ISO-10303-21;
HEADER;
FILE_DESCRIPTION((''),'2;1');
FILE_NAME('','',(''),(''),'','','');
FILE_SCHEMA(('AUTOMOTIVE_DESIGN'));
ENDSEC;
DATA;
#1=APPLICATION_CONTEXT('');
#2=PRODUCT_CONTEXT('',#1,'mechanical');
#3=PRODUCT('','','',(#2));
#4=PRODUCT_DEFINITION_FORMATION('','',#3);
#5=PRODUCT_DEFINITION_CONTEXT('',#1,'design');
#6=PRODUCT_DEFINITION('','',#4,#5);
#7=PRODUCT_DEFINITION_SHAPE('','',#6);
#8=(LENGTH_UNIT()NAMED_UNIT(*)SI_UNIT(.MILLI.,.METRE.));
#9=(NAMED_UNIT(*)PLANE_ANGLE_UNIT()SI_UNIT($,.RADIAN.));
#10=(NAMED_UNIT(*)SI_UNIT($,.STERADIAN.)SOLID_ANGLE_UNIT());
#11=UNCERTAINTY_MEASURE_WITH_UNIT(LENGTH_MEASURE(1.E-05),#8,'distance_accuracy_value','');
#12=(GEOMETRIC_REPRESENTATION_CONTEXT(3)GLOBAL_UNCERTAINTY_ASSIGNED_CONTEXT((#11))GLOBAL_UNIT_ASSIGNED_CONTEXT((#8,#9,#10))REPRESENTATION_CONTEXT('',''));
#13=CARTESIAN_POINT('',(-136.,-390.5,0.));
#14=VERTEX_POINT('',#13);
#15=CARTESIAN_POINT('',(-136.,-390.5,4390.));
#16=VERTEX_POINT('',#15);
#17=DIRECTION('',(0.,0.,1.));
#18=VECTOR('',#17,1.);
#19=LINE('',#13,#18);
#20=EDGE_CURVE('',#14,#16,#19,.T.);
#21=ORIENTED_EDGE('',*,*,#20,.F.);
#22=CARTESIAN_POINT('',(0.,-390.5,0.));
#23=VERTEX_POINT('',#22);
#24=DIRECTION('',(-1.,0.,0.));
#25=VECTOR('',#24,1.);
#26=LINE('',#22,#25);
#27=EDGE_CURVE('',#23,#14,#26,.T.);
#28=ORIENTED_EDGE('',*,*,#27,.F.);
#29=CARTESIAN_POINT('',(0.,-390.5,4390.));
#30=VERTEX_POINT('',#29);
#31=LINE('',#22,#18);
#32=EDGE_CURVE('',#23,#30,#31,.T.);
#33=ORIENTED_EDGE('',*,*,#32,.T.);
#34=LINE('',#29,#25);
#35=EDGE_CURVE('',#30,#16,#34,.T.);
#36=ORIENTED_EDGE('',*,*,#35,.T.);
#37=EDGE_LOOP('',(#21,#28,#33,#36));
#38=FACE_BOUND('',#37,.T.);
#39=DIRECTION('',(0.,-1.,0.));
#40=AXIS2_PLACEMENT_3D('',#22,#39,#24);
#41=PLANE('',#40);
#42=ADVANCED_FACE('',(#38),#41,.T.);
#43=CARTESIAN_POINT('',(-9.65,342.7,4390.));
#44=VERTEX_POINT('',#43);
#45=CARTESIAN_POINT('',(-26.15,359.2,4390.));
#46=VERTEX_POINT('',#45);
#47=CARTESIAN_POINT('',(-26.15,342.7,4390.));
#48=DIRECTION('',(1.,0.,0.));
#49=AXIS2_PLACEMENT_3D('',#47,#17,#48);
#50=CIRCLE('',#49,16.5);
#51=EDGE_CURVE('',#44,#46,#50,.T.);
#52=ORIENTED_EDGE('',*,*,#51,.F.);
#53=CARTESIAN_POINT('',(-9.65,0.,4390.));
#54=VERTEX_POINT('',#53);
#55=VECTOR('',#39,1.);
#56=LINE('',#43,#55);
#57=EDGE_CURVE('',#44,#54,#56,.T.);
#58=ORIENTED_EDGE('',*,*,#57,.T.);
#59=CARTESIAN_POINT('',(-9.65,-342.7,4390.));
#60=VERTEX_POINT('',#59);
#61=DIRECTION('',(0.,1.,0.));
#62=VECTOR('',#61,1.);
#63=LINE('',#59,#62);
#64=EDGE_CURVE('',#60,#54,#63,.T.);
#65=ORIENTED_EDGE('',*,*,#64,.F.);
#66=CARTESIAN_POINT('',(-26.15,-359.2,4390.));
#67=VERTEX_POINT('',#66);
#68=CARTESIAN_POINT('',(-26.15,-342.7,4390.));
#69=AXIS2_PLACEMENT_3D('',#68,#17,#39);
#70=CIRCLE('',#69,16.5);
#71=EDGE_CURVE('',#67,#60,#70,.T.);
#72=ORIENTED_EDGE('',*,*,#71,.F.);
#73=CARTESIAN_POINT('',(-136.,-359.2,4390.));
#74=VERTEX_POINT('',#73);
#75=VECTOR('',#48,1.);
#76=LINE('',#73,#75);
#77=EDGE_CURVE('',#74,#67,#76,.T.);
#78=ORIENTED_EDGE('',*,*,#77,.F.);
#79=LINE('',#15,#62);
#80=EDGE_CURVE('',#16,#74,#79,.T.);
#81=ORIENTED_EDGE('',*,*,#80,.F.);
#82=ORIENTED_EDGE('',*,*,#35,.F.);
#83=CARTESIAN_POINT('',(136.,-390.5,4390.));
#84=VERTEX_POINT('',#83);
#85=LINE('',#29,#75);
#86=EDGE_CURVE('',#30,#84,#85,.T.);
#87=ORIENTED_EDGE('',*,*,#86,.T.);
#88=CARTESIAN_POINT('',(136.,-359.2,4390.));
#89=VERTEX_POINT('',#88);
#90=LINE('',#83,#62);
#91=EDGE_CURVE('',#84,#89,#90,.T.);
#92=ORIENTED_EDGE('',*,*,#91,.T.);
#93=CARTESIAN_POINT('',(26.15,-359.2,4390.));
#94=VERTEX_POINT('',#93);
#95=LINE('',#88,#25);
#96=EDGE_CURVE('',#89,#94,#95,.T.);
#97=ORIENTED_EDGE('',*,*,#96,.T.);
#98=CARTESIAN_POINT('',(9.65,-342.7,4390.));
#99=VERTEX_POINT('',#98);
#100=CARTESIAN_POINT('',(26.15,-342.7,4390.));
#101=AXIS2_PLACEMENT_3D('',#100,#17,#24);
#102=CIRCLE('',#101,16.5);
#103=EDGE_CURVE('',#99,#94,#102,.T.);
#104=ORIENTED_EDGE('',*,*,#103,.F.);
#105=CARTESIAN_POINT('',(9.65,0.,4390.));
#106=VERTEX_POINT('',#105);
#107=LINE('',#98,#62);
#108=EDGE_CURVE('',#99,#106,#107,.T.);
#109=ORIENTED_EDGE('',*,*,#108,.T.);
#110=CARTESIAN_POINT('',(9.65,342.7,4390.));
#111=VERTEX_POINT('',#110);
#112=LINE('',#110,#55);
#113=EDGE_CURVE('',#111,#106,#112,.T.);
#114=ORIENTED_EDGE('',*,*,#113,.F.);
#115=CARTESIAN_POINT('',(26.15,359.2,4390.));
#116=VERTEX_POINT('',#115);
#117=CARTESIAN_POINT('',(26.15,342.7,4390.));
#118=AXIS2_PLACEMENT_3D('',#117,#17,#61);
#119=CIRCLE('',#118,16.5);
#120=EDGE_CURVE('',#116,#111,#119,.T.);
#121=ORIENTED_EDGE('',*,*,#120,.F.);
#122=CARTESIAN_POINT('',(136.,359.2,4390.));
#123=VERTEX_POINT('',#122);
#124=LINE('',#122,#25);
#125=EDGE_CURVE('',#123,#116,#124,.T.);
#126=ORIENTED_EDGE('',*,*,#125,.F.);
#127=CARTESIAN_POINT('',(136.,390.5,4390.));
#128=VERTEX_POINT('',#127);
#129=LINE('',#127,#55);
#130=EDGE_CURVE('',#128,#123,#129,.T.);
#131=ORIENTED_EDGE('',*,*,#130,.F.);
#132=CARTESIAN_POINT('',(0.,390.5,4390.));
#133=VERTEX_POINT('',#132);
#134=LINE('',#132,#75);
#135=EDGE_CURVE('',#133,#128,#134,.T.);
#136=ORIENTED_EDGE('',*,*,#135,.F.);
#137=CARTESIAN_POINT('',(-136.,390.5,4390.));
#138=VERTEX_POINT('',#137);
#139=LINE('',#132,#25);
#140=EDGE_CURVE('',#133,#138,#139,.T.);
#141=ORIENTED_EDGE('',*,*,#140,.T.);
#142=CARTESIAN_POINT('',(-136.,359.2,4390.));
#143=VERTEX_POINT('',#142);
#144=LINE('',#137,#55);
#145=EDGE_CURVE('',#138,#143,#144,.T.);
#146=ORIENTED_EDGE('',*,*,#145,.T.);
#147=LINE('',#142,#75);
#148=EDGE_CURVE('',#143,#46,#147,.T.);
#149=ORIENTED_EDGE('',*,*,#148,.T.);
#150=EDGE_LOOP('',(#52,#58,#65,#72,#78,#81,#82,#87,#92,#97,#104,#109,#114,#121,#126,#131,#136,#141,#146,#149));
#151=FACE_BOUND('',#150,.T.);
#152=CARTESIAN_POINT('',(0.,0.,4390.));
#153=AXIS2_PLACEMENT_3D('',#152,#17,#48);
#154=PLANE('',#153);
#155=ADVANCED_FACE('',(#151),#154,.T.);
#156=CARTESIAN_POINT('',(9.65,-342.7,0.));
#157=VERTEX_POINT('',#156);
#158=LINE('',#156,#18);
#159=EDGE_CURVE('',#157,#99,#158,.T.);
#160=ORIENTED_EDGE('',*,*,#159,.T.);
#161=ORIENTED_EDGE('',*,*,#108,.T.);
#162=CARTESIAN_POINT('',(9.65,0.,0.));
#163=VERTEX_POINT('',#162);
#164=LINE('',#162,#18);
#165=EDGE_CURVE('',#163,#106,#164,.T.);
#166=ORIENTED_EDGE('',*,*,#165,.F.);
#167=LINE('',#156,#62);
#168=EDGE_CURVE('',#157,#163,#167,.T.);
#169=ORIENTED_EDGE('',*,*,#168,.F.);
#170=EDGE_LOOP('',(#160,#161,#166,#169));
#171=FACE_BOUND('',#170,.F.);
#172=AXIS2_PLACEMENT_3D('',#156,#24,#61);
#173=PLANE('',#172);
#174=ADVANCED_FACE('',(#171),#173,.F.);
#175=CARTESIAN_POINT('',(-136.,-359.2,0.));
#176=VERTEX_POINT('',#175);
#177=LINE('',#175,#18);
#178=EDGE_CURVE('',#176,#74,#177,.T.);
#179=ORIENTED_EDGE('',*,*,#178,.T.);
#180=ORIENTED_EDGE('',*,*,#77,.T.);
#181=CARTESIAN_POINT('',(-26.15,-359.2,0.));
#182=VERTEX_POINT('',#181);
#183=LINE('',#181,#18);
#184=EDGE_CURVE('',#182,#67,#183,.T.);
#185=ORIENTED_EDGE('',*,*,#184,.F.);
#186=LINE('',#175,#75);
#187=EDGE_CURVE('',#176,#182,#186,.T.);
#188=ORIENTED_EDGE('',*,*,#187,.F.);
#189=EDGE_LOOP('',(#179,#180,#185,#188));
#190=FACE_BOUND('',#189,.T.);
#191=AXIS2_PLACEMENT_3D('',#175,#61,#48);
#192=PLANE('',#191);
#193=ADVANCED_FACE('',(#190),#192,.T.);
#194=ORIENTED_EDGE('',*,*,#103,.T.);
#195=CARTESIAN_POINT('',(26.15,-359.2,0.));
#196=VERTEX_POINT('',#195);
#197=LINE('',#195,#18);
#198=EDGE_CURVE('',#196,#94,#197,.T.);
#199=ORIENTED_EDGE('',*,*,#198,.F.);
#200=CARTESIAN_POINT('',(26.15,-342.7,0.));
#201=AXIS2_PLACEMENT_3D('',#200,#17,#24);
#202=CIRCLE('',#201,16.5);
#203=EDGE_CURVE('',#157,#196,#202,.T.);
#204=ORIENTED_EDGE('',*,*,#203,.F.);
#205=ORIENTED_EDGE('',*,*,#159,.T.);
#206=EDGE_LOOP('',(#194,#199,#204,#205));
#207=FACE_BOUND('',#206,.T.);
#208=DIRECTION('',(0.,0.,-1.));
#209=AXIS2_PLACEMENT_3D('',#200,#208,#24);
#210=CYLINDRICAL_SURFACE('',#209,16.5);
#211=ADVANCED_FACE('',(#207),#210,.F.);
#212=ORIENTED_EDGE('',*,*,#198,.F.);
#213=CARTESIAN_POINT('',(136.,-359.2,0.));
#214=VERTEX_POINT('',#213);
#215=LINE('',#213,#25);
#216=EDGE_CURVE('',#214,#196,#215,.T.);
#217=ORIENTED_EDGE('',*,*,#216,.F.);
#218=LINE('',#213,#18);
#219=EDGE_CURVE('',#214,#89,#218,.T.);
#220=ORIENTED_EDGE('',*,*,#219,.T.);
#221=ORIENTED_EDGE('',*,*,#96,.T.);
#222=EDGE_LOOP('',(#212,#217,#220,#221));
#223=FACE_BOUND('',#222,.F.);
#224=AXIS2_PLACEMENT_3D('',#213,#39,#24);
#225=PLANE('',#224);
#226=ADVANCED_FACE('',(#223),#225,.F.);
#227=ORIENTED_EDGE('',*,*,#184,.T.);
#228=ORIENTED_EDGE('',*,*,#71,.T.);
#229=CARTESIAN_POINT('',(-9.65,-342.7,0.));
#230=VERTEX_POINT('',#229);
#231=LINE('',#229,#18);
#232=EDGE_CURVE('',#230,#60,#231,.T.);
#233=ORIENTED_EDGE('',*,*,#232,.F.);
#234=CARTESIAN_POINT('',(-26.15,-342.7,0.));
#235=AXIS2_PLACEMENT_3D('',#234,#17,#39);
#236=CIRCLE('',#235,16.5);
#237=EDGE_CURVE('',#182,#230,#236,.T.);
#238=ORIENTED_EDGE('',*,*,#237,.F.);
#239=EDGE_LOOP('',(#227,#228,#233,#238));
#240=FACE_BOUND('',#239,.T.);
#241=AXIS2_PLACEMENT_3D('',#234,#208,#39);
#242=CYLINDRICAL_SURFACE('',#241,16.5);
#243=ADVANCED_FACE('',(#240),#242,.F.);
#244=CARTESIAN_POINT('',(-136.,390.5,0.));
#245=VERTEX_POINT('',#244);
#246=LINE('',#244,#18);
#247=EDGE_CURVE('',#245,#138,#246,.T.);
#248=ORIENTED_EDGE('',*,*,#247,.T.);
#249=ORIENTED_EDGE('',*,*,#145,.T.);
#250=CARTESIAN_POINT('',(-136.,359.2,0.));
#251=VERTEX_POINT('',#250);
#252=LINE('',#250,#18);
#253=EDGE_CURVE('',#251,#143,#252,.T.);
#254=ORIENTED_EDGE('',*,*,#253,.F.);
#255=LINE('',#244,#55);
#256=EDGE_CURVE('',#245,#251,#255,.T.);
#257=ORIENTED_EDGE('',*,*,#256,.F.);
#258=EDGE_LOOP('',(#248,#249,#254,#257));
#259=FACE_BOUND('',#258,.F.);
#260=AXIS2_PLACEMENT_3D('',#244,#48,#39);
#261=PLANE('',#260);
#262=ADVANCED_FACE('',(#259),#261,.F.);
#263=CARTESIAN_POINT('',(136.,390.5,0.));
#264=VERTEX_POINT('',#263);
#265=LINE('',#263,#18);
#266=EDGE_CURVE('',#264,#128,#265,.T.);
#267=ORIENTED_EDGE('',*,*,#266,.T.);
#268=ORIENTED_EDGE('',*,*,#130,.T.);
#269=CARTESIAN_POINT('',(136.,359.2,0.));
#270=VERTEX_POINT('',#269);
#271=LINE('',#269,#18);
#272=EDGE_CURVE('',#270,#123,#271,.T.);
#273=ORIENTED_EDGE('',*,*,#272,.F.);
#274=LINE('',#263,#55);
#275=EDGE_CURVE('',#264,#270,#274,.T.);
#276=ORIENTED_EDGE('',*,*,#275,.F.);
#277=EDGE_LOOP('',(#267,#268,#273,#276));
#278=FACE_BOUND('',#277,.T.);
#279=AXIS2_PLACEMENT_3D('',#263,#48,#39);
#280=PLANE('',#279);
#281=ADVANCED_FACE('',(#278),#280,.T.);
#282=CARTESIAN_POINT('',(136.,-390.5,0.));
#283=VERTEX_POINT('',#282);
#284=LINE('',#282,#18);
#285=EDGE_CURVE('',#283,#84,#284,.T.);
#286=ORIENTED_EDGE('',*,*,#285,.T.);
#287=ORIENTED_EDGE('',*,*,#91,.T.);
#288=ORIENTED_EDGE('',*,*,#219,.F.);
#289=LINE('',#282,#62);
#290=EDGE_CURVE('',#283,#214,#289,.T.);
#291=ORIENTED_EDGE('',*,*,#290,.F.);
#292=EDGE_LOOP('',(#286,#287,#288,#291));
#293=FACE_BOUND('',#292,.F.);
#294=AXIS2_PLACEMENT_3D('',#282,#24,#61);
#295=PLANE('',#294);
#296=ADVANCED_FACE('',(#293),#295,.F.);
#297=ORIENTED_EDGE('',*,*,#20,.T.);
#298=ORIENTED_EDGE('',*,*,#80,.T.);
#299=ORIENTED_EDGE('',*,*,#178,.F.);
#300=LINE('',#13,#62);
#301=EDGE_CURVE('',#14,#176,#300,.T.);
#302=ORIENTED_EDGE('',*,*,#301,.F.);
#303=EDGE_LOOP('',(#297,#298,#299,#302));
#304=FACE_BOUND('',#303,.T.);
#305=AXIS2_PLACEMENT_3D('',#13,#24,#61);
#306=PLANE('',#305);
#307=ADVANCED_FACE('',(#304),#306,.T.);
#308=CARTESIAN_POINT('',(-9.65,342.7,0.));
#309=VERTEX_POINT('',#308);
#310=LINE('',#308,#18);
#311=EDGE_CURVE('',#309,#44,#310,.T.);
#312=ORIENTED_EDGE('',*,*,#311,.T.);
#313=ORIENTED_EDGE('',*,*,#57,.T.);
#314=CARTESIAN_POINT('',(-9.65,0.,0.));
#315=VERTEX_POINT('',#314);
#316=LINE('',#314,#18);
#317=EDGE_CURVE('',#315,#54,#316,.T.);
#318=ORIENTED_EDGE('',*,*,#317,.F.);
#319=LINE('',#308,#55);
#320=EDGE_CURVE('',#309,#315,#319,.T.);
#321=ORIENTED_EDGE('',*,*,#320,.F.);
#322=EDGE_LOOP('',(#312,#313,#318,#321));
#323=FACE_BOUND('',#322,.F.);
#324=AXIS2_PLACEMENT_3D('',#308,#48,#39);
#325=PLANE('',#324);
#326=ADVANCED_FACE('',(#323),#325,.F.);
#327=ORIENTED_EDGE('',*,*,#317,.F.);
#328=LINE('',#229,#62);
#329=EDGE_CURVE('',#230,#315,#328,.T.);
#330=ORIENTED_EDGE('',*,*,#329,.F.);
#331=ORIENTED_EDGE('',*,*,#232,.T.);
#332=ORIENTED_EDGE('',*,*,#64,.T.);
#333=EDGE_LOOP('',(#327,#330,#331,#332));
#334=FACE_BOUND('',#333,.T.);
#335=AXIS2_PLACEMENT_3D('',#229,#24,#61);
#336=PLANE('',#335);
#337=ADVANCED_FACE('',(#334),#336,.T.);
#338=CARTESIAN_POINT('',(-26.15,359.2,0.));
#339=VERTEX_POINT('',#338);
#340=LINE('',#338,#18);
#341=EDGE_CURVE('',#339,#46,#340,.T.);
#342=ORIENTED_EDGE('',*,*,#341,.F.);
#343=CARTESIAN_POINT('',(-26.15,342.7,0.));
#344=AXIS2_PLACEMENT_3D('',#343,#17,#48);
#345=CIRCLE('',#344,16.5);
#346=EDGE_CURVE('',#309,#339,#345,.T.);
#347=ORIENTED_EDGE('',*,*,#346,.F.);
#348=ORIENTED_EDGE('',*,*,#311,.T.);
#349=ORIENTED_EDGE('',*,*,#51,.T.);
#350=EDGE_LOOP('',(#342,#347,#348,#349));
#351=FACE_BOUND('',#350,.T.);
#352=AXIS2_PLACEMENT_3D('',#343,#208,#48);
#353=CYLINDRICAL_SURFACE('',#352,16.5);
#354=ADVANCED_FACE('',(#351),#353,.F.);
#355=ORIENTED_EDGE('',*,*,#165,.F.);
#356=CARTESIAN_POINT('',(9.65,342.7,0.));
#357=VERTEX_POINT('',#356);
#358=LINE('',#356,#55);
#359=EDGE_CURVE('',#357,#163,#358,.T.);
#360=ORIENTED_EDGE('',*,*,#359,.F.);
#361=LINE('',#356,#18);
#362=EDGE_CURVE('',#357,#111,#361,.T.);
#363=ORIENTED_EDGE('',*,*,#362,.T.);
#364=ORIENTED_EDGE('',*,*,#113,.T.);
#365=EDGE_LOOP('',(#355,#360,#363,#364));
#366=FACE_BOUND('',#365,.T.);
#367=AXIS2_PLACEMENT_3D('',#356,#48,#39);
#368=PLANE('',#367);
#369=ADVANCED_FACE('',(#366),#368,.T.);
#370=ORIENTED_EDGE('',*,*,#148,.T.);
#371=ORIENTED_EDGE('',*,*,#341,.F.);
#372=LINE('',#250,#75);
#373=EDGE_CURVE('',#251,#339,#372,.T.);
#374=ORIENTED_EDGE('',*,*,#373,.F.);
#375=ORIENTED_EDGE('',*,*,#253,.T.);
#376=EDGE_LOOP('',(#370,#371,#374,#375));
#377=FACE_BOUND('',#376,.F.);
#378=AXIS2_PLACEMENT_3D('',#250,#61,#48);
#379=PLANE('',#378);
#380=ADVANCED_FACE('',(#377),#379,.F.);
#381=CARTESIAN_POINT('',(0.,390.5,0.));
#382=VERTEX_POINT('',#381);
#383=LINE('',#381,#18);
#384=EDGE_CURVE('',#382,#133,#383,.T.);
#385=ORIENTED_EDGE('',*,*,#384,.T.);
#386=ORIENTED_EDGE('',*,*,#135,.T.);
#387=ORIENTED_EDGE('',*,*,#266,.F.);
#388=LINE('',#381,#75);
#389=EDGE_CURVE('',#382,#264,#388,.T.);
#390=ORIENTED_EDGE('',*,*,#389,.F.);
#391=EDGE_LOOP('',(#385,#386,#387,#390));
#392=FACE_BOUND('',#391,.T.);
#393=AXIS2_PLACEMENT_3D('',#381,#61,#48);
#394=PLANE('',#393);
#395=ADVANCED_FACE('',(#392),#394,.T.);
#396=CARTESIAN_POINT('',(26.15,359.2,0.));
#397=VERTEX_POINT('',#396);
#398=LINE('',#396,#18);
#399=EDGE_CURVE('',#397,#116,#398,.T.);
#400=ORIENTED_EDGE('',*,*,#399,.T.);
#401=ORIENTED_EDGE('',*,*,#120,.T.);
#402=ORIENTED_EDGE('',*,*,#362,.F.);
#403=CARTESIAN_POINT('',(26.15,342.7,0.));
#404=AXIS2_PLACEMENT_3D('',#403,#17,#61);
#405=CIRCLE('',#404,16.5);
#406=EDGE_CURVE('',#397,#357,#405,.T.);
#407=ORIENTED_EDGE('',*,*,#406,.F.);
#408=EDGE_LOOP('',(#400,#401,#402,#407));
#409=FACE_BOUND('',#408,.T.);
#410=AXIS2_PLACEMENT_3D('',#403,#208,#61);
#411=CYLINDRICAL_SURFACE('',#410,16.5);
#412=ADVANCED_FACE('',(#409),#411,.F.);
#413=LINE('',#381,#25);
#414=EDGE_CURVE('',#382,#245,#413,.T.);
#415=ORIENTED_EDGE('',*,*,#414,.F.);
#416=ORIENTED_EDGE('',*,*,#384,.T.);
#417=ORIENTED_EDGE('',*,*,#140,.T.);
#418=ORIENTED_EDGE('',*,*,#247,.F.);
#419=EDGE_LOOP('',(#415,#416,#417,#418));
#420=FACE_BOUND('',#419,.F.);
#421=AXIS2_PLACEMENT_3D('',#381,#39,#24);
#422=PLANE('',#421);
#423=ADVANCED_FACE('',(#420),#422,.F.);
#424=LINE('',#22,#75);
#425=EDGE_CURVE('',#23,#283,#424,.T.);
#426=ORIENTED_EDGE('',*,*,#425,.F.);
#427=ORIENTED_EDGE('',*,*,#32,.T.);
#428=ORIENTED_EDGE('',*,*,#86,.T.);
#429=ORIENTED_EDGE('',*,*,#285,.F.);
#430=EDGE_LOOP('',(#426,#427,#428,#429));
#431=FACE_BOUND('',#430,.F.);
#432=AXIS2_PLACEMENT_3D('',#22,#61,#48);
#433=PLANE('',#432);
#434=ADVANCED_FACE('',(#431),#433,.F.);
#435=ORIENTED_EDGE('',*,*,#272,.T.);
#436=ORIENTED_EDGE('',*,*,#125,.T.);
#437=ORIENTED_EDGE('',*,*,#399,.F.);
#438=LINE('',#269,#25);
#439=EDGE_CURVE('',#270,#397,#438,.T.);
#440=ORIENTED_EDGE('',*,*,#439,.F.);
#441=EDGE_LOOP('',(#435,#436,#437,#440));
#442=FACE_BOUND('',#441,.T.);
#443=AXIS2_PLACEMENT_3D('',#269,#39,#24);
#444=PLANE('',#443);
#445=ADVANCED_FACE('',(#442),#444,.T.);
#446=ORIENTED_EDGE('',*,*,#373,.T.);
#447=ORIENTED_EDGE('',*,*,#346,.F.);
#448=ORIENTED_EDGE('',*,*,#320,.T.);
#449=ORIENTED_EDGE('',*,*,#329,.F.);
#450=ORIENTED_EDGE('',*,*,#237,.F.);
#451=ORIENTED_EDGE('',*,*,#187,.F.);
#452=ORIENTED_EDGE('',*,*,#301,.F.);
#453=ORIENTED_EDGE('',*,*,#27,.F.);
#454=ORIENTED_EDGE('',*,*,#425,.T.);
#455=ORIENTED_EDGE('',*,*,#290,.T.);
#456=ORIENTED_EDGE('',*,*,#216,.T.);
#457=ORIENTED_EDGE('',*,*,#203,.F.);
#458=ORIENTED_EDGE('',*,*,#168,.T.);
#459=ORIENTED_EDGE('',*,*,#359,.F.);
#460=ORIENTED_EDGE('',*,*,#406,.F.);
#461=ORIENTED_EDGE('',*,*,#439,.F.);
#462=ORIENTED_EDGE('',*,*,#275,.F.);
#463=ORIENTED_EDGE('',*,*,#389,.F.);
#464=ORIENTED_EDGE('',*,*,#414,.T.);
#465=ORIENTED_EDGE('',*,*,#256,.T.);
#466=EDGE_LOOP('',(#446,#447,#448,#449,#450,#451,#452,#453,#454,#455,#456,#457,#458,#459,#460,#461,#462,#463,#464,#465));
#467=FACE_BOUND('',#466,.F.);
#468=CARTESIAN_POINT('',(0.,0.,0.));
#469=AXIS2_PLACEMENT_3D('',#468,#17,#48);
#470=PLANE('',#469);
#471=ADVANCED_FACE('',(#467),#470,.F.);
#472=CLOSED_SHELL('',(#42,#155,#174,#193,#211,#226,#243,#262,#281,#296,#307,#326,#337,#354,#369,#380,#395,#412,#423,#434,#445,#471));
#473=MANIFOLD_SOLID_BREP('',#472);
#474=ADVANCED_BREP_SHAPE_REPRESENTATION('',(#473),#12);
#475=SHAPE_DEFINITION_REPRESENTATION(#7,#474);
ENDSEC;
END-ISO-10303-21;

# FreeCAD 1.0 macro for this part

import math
import FreeCAD as App
import Part
import Sketcher
from FreeCAD import Vector
Q = App.Units.Quantity

doc = App.newDocument("Part")
body = doc.addObject("PartDesign::Body", "Body")

# Sketch on XY plane
sketch1 = doc.addObject("Sketcher::SketchObject", "Sketch")
body.addObject(sketch1)
sketch1.AttachmentSupport = (doc.XY_Plane, [""])
sketch1.MapMode = "FlatFace"
sketch1.addGeometry([
    Part.LineSegment(Vector(-136, -359, 0), Vector(-136, -390, 0)),  # 0
    Part.LineSegment(Vector(-136, -390, 0), Vector(136, -390, 0)),  # 1
    Part.LineSegment(Vector(136, -390, 0), Vector(136, -359, 0)),  # 2
    Part.LineSegment(Vector(136, -359, 0), Vector(26, -359, 0)),  # 3
    Part.ArcOfCircle(Part.Circle(Vector(26, -343, 0), Vector(0, 0, 1), 16), math.radians(180), math.radians(270)),  # 4
    Part.LineSegment(Vector(10, -343, 0), Vector(10, 343, 0)),  # 5
    Part.ArcOfCircle(Part.Circle(Vector(26, 343, 0), Vector(0, 0, 1), 16), math.radians(90), math.radians(180)),  # 6
    Part.LineSegment(Vector(26, 359, 0), Vector(136, 359, 0)),  # 7
    Part.LineSegment(Vector(136, 359, 0), Vector(136, 390, 0)),  # 8
    Part.LineSegment(Vector(136, 390, 0), Vector(-136, 390, 0)),  # 9
    Part.LineSegment(Vector(-136, 390, 0), Vector(-136, 359, 0)),  # 10
    Part.LineSegment(Vector(-136, 359, 0), Vector(-26, 359, 0)),  # 11
    Part.ArcOfCircle(Part.Circle(Vector(-26, 343, 0), Vector(0, 0, 1), 16), math.radians(0), math.radians(90)),  # 12
    Part.LineSegment(Vector(-10, 343, 0), Vector(-10, -343, 0)),  # 13
    Part.ArcOfCircle(Part.Circle(Vector(-26, -343, 0), Vector(0, 0, 1), 16), math.radians(-90), math.radians(0)),  # 14
    Part.LineSegment(Vector(-26, -359, 0), Vector(-136, -359, 0)),  # 15
], False)
sketch1.addConstraint([
    Sketcher.Constraint("Coincident", 0, 2, 1, 1),
    Sketcher.Constraint("Coincident", 1, 2, 2, 1),
    Sketcher.Constraint("Coincident", 2, 2, 3, 1),
    Sketcher.Constraint("Tangent", 3, 2, 4, 2),
    Sketcher.Constraint("Tangent", 4, 1, 5, 1),
    Sketcher.Constraint("Tangent", 5, 2, 6, 2),
    Sketcher.Constraint("Tangent", 6, 1, 7, 1),
    Sketcher.Constraint("Coincident", 7, 2, 8, 1),
    Sketcher.Constraint("Coincident", 8, 2, 9, 1),
    Sketcher.Constraint("Coincident", 9, 2, 10, 1),
    Sketcher.Constraint("Coincident", 10, 2, 11, 1),
    Sketcher.Constraint("Tangent", 11, 2, 12, 2),
    Sketcher.Constraint("Tangent", 12, 1, 13, 1),
    Sketcher.Constraint("Tangent", 13, 2, 14, 2),
    Sketcher.Constraint("Tangent", 14, 1, 15, 1),
    Sketcher.Constraint("Coincident", 15, 2, 0, 1),
    Sketcher.Constraint("Vertical", 0),
    Sketcher.Constraint("Horizontal", 1),
    Sketcher.Constraint("Vertical", 2),
    Sketcher.Constraint("Horizontal", 3),
    Sketcher.Constraint("Vertical", 5),
    Sketcher.Constraint("Horizontal", 7),
    Sketcher.Constraint("Vertical", 8),
    Sketcher.Constraint("Horizontal", 9),
    Sketcher.Constraint("Vertical", 10),
    Sketcher.Constraint("Horizontal", 11),
    Sketcher.Constraint("Vertical", 13),
    Sketcher.Constraint("Horizontal", 15),
    Sketcher.Constraint("Equal", 4, 6),
    Sketcher.Constraint("Equal", 6, 12),
    Sketcher.Constraint("Equal", 12, 14),
    Sketcher.Constraint("Symmetric", 4, 3, 12, 3, -1, 1),
    Sketcher.Constraint("Symmetric", 0, 2, 8, 2, -1, 1),
    Sketcher.Constraint("Symmetric", 7, 2, 10, 2, -2),
    Sketcher.Constraint("Symmetric", 2, 2, 15, 2, -2),
    Sketcher.Constraint("Radius", 4, Q("16.5 mm")),
    Sketcher.Constraint("DistanceY", 0, 2, 0, 1, Q("31.3 mm")),
    Sketcher.Constraint("DistanceX", 0, 2, -1, 1, Q("136 mm")),
    Sketcher.Constraint("DistanceY", 0, 2, -1, 1, Q("390.5 mm")),
    Sketcher.Constraint("DistanceX", -1, 1, 4, 1, Q("9.65 mm")),
])
pad1 = doc.addObject("PartDesign::Pad", "Pad")
body.addObject(pad1)
pad1.Profile = sketch1
pad1.Length = 4390

doc.recompute()
